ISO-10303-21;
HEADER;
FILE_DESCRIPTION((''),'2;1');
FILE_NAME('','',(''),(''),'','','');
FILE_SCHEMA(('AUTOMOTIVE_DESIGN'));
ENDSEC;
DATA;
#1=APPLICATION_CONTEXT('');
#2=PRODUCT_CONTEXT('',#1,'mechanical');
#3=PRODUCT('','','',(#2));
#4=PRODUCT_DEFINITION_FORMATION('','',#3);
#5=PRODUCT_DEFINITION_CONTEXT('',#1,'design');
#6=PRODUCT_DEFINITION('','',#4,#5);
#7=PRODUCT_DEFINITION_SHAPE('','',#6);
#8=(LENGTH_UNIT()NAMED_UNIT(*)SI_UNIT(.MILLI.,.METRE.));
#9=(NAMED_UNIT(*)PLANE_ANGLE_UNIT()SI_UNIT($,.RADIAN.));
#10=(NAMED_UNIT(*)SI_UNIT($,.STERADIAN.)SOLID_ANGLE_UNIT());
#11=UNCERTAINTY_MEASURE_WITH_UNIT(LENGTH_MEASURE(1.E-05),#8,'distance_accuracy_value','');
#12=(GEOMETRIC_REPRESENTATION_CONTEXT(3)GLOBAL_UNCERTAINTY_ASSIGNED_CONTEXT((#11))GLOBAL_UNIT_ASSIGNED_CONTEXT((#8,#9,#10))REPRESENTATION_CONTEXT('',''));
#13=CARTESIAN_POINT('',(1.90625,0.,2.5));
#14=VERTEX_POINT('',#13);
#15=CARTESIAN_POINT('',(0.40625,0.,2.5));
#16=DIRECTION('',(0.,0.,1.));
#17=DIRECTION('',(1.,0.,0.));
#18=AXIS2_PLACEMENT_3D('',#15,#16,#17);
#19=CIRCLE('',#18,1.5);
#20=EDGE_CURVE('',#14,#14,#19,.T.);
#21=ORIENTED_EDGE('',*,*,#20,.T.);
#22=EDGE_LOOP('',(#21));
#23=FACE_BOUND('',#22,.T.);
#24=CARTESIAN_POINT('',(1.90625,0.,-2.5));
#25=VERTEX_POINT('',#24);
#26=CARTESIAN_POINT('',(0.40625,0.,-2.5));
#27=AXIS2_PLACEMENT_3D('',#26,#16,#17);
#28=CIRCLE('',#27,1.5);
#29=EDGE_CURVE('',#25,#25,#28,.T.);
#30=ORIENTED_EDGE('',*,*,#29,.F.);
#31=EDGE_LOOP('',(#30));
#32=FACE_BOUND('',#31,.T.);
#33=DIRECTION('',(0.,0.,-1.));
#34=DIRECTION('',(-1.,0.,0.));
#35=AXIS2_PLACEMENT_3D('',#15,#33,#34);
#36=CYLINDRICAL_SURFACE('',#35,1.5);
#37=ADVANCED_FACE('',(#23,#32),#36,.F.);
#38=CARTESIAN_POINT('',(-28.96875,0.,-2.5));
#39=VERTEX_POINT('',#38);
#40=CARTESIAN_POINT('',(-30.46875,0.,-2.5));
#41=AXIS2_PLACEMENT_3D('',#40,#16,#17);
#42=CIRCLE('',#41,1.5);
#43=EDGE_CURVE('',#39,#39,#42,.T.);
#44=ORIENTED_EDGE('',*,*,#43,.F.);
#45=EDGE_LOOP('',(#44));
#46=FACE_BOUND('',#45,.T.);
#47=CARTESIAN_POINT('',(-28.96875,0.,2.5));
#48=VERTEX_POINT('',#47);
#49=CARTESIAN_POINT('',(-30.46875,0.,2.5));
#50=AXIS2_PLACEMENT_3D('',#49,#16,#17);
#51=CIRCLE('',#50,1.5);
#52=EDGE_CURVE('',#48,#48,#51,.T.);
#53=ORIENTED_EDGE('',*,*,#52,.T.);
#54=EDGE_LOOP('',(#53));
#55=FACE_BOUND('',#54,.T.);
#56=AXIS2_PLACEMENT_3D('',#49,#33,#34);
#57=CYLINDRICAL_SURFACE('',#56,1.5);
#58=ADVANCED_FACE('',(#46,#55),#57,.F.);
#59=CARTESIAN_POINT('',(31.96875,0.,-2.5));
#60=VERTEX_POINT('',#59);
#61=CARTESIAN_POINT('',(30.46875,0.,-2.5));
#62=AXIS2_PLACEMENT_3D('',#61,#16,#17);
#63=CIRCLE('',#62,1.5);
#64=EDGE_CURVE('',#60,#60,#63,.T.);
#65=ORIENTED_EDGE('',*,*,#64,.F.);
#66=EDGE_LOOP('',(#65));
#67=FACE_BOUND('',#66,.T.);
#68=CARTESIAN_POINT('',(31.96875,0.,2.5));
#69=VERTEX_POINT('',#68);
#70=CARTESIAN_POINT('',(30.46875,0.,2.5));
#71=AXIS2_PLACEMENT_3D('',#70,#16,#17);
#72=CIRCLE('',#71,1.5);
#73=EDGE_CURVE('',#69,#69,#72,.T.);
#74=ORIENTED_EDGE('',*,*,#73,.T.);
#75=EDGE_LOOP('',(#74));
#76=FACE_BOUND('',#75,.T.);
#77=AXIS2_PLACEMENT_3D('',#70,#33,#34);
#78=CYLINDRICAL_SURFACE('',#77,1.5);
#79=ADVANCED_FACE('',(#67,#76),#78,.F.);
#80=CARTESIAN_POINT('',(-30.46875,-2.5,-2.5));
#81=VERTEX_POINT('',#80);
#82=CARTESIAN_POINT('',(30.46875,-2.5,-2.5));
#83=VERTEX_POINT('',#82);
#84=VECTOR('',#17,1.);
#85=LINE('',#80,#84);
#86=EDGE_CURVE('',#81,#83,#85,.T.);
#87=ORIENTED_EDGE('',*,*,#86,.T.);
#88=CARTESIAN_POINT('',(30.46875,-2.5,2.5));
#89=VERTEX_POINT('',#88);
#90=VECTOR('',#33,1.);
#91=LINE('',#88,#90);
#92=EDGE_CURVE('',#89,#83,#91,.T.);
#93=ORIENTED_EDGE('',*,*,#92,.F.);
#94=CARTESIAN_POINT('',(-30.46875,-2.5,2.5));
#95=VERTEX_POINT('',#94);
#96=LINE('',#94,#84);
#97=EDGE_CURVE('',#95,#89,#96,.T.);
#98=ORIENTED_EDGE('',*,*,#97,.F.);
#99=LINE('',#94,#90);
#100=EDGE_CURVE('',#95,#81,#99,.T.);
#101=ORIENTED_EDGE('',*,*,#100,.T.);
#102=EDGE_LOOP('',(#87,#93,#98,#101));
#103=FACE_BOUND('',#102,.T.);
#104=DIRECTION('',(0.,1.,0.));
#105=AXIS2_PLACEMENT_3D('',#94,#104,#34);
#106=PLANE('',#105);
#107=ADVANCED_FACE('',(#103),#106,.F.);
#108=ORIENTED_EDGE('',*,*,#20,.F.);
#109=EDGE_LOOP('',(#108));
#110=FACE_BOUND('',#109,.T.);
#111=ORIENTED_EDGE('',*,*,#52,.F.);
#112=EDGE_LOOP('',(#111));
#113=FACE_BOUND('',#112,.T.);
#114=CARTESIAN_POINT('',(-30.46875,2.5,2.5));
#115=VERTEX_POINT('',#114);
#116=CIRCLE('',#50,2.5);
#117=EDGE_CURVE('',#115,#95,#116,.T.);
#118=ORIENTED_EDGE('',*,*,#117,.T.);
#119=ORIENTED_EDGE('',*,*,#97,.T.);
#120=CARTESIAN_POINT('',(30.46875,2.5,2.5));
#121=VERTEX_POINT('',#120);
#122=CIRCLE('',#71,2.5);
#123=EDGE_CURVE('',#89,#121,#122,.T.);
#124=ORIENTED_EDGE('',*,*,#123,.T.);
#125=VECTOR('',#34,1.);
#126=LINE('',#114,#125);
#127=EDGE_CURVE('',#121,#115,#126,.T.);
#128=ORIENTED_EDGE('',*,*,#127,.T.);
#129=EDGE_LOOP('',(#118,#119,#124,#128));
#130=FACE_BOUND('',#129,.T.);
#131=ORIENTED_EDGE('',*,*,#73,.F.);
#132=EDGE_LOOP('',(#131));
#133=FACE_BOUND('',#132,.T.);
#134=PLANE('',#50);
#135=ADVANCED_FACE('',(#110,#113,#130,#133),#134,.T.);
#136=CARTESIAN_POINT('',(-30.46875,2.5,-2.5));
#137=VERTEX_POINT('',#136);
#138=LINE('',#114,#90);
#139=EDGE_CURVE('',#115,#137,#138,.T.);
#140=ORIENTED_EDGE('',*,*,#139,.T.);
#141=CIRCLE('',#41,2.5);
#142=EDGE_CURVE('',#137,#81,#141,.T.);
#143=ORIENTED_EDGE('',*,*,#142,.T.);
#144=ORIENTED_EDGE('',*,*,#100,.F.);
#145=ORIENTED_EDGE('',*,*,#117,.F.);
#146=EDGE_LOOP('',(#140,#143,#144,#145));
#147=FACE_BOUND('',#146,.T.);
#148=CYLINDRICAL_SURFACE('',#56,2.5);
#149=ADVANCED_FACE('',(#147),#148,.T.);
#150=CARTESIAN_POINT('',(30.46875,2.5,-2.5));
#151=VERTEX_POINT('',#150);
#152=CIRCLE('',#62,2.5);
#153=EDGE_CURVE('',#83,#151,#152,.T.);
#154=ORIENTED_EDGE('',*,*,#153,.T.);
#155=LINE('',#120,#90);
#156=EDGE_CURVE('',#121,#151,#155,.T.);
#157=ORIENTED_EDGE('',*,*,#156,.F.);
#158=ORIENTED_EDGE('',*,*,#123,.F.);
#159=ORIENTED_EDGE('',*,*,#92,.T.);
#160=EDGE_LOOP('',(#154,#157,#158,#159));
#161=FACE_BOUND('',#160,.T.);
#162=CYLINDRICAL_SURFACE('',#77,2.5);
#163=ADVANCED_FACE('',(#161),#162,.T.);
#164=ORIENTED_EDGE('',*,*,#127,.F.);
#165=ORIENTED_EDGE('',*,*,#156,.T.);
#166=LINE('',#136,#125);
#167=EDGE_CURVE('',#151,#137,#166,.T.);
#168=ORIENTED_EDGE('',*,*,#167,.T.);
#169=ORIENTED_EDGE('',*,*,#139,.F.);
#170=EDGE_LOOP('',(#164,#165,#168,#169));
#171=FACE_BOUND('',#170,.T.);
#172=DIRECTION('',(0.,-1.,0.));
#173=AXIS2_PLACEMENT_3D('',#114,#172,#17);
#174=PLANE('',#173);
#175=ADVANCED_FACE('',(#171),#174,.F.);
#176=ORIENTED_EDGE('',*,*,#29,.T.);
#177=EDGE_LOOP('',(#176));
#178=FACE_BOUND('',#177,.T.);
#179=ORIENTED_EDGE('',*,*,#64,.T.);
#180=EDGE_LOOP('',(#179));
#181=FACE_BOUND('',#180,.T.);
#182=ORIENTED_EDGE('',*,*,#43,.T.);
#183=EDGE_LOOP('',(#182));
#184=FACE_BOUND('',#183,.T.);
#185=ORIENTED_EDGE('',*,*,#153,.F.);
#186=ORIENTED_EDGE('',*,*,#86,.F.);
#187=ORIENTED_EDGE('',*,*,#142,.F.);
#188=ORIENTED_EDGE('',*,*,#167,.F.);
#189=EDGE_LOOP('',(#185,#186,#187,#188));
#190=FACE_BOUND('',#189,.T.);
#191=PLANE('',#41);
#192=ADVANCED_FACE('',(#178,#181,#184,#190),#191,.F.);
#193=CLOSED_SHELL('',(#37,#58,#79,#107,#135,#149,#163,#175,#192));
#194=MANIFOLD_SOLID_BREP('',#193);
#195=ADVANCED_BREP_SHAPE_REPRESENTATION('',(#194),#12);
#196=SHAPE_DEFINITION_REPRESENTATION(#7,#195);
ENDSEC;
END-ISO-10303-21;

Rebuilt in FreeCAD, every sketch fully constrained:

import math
import FreeCAD as App
import Part
import Sketcher
Q = App.Units.Quantity

doc = App.newDocument("Part")
body = doc.addObject("PartDesign::Body", "Body")

sketch1 = body.newObject("Sketcher::SketchObject", "Sketch")
sketch1.AttachmentSupport = (doc.getObject("XY_Plane"), [""])
sketch1.MapMode = "FlatFace"
sketch1.addGeometry([
    Part.LineSegment(App.Vector(30.5, 2.5, 0), App.Vector(-30.5, 2.5, 0)),
    Part.ArcOfCircle(Part.Circle(App.Vector(-30.5, 0, 0), App.Vector(0, 0, 1), 2.5), math.radians(90), math.radians(270)),
    Part.LineSegment(App.Vector(-30.5, -2.5, 0), App.Vector(30.5, -2.5, 0)),
    Part.ArcOfCircle(Part.Circle(App.Vector(30.5, 0, 0), App.Vector(0, 0, 1), 2.5), math.radians(-90), math.radians(90)),
    Part.Circle(App.Vector(30.5, 0, 0), App.Vector(0, 0, 1), 1.5),
    Part.Circle(App.Vector(0.4, 0, 0), App.Vector(0, 0, 1), 1.5),
    Part.Circle(App.Vector(-30.5, 0, 0), App.Vector(0, 0, 1), 1.5),
], False)
sketch1.addConstraint([
    Sketcher.Constraint("Tangent", 0, 2, 1, 1),
    Sketcher.Constraint("Tangent", 1, 2, 2, 1),
    Sketcher.Constraint("Tangent", 2, 2, 3, 1),
    Sketcher.Constraint("Tangent", 3, 2, 0, 1),
    Sketcher.Constraint("Horizontal", 0),
    Sketcher.Constraint("Horizontal", 2),
    Sketcher.Constraint("Coincident", 4, 3, 3, 3),
    Sketcher.Constraint("Coincident", 6, 3, 1, 3),
    Sketcher.Constraint("Equal", 4, 5),
    Sketcher.Constraint("Equal", 5, 6),
    Sketcher.Constraint("Symmetric", 1, 3, 3, 3, -1, 1),
    Sketcher.Constraint("PointOnObject", 5, 3, -1),
    Sketcher.Constraint("Diameter", 4, Q("3 mm")),
    Sketcher.Constraint("Radius", 1, Q("2.5 mm")),
    Sketcher.Constraint("DistanceX", 0, 2, 0, 1, Q("60.9375 mm")),
    Sketcher.Constraint("DistanceX", 1, 3, 5, 3, Q("30.875 mm")),
])
pad1 = body.newObject("PartDesign::Pad", "Pad")
pad1.Profile = sketch1
pad1.Length = 5
pad1.Midplane = True

doc.recompute()
